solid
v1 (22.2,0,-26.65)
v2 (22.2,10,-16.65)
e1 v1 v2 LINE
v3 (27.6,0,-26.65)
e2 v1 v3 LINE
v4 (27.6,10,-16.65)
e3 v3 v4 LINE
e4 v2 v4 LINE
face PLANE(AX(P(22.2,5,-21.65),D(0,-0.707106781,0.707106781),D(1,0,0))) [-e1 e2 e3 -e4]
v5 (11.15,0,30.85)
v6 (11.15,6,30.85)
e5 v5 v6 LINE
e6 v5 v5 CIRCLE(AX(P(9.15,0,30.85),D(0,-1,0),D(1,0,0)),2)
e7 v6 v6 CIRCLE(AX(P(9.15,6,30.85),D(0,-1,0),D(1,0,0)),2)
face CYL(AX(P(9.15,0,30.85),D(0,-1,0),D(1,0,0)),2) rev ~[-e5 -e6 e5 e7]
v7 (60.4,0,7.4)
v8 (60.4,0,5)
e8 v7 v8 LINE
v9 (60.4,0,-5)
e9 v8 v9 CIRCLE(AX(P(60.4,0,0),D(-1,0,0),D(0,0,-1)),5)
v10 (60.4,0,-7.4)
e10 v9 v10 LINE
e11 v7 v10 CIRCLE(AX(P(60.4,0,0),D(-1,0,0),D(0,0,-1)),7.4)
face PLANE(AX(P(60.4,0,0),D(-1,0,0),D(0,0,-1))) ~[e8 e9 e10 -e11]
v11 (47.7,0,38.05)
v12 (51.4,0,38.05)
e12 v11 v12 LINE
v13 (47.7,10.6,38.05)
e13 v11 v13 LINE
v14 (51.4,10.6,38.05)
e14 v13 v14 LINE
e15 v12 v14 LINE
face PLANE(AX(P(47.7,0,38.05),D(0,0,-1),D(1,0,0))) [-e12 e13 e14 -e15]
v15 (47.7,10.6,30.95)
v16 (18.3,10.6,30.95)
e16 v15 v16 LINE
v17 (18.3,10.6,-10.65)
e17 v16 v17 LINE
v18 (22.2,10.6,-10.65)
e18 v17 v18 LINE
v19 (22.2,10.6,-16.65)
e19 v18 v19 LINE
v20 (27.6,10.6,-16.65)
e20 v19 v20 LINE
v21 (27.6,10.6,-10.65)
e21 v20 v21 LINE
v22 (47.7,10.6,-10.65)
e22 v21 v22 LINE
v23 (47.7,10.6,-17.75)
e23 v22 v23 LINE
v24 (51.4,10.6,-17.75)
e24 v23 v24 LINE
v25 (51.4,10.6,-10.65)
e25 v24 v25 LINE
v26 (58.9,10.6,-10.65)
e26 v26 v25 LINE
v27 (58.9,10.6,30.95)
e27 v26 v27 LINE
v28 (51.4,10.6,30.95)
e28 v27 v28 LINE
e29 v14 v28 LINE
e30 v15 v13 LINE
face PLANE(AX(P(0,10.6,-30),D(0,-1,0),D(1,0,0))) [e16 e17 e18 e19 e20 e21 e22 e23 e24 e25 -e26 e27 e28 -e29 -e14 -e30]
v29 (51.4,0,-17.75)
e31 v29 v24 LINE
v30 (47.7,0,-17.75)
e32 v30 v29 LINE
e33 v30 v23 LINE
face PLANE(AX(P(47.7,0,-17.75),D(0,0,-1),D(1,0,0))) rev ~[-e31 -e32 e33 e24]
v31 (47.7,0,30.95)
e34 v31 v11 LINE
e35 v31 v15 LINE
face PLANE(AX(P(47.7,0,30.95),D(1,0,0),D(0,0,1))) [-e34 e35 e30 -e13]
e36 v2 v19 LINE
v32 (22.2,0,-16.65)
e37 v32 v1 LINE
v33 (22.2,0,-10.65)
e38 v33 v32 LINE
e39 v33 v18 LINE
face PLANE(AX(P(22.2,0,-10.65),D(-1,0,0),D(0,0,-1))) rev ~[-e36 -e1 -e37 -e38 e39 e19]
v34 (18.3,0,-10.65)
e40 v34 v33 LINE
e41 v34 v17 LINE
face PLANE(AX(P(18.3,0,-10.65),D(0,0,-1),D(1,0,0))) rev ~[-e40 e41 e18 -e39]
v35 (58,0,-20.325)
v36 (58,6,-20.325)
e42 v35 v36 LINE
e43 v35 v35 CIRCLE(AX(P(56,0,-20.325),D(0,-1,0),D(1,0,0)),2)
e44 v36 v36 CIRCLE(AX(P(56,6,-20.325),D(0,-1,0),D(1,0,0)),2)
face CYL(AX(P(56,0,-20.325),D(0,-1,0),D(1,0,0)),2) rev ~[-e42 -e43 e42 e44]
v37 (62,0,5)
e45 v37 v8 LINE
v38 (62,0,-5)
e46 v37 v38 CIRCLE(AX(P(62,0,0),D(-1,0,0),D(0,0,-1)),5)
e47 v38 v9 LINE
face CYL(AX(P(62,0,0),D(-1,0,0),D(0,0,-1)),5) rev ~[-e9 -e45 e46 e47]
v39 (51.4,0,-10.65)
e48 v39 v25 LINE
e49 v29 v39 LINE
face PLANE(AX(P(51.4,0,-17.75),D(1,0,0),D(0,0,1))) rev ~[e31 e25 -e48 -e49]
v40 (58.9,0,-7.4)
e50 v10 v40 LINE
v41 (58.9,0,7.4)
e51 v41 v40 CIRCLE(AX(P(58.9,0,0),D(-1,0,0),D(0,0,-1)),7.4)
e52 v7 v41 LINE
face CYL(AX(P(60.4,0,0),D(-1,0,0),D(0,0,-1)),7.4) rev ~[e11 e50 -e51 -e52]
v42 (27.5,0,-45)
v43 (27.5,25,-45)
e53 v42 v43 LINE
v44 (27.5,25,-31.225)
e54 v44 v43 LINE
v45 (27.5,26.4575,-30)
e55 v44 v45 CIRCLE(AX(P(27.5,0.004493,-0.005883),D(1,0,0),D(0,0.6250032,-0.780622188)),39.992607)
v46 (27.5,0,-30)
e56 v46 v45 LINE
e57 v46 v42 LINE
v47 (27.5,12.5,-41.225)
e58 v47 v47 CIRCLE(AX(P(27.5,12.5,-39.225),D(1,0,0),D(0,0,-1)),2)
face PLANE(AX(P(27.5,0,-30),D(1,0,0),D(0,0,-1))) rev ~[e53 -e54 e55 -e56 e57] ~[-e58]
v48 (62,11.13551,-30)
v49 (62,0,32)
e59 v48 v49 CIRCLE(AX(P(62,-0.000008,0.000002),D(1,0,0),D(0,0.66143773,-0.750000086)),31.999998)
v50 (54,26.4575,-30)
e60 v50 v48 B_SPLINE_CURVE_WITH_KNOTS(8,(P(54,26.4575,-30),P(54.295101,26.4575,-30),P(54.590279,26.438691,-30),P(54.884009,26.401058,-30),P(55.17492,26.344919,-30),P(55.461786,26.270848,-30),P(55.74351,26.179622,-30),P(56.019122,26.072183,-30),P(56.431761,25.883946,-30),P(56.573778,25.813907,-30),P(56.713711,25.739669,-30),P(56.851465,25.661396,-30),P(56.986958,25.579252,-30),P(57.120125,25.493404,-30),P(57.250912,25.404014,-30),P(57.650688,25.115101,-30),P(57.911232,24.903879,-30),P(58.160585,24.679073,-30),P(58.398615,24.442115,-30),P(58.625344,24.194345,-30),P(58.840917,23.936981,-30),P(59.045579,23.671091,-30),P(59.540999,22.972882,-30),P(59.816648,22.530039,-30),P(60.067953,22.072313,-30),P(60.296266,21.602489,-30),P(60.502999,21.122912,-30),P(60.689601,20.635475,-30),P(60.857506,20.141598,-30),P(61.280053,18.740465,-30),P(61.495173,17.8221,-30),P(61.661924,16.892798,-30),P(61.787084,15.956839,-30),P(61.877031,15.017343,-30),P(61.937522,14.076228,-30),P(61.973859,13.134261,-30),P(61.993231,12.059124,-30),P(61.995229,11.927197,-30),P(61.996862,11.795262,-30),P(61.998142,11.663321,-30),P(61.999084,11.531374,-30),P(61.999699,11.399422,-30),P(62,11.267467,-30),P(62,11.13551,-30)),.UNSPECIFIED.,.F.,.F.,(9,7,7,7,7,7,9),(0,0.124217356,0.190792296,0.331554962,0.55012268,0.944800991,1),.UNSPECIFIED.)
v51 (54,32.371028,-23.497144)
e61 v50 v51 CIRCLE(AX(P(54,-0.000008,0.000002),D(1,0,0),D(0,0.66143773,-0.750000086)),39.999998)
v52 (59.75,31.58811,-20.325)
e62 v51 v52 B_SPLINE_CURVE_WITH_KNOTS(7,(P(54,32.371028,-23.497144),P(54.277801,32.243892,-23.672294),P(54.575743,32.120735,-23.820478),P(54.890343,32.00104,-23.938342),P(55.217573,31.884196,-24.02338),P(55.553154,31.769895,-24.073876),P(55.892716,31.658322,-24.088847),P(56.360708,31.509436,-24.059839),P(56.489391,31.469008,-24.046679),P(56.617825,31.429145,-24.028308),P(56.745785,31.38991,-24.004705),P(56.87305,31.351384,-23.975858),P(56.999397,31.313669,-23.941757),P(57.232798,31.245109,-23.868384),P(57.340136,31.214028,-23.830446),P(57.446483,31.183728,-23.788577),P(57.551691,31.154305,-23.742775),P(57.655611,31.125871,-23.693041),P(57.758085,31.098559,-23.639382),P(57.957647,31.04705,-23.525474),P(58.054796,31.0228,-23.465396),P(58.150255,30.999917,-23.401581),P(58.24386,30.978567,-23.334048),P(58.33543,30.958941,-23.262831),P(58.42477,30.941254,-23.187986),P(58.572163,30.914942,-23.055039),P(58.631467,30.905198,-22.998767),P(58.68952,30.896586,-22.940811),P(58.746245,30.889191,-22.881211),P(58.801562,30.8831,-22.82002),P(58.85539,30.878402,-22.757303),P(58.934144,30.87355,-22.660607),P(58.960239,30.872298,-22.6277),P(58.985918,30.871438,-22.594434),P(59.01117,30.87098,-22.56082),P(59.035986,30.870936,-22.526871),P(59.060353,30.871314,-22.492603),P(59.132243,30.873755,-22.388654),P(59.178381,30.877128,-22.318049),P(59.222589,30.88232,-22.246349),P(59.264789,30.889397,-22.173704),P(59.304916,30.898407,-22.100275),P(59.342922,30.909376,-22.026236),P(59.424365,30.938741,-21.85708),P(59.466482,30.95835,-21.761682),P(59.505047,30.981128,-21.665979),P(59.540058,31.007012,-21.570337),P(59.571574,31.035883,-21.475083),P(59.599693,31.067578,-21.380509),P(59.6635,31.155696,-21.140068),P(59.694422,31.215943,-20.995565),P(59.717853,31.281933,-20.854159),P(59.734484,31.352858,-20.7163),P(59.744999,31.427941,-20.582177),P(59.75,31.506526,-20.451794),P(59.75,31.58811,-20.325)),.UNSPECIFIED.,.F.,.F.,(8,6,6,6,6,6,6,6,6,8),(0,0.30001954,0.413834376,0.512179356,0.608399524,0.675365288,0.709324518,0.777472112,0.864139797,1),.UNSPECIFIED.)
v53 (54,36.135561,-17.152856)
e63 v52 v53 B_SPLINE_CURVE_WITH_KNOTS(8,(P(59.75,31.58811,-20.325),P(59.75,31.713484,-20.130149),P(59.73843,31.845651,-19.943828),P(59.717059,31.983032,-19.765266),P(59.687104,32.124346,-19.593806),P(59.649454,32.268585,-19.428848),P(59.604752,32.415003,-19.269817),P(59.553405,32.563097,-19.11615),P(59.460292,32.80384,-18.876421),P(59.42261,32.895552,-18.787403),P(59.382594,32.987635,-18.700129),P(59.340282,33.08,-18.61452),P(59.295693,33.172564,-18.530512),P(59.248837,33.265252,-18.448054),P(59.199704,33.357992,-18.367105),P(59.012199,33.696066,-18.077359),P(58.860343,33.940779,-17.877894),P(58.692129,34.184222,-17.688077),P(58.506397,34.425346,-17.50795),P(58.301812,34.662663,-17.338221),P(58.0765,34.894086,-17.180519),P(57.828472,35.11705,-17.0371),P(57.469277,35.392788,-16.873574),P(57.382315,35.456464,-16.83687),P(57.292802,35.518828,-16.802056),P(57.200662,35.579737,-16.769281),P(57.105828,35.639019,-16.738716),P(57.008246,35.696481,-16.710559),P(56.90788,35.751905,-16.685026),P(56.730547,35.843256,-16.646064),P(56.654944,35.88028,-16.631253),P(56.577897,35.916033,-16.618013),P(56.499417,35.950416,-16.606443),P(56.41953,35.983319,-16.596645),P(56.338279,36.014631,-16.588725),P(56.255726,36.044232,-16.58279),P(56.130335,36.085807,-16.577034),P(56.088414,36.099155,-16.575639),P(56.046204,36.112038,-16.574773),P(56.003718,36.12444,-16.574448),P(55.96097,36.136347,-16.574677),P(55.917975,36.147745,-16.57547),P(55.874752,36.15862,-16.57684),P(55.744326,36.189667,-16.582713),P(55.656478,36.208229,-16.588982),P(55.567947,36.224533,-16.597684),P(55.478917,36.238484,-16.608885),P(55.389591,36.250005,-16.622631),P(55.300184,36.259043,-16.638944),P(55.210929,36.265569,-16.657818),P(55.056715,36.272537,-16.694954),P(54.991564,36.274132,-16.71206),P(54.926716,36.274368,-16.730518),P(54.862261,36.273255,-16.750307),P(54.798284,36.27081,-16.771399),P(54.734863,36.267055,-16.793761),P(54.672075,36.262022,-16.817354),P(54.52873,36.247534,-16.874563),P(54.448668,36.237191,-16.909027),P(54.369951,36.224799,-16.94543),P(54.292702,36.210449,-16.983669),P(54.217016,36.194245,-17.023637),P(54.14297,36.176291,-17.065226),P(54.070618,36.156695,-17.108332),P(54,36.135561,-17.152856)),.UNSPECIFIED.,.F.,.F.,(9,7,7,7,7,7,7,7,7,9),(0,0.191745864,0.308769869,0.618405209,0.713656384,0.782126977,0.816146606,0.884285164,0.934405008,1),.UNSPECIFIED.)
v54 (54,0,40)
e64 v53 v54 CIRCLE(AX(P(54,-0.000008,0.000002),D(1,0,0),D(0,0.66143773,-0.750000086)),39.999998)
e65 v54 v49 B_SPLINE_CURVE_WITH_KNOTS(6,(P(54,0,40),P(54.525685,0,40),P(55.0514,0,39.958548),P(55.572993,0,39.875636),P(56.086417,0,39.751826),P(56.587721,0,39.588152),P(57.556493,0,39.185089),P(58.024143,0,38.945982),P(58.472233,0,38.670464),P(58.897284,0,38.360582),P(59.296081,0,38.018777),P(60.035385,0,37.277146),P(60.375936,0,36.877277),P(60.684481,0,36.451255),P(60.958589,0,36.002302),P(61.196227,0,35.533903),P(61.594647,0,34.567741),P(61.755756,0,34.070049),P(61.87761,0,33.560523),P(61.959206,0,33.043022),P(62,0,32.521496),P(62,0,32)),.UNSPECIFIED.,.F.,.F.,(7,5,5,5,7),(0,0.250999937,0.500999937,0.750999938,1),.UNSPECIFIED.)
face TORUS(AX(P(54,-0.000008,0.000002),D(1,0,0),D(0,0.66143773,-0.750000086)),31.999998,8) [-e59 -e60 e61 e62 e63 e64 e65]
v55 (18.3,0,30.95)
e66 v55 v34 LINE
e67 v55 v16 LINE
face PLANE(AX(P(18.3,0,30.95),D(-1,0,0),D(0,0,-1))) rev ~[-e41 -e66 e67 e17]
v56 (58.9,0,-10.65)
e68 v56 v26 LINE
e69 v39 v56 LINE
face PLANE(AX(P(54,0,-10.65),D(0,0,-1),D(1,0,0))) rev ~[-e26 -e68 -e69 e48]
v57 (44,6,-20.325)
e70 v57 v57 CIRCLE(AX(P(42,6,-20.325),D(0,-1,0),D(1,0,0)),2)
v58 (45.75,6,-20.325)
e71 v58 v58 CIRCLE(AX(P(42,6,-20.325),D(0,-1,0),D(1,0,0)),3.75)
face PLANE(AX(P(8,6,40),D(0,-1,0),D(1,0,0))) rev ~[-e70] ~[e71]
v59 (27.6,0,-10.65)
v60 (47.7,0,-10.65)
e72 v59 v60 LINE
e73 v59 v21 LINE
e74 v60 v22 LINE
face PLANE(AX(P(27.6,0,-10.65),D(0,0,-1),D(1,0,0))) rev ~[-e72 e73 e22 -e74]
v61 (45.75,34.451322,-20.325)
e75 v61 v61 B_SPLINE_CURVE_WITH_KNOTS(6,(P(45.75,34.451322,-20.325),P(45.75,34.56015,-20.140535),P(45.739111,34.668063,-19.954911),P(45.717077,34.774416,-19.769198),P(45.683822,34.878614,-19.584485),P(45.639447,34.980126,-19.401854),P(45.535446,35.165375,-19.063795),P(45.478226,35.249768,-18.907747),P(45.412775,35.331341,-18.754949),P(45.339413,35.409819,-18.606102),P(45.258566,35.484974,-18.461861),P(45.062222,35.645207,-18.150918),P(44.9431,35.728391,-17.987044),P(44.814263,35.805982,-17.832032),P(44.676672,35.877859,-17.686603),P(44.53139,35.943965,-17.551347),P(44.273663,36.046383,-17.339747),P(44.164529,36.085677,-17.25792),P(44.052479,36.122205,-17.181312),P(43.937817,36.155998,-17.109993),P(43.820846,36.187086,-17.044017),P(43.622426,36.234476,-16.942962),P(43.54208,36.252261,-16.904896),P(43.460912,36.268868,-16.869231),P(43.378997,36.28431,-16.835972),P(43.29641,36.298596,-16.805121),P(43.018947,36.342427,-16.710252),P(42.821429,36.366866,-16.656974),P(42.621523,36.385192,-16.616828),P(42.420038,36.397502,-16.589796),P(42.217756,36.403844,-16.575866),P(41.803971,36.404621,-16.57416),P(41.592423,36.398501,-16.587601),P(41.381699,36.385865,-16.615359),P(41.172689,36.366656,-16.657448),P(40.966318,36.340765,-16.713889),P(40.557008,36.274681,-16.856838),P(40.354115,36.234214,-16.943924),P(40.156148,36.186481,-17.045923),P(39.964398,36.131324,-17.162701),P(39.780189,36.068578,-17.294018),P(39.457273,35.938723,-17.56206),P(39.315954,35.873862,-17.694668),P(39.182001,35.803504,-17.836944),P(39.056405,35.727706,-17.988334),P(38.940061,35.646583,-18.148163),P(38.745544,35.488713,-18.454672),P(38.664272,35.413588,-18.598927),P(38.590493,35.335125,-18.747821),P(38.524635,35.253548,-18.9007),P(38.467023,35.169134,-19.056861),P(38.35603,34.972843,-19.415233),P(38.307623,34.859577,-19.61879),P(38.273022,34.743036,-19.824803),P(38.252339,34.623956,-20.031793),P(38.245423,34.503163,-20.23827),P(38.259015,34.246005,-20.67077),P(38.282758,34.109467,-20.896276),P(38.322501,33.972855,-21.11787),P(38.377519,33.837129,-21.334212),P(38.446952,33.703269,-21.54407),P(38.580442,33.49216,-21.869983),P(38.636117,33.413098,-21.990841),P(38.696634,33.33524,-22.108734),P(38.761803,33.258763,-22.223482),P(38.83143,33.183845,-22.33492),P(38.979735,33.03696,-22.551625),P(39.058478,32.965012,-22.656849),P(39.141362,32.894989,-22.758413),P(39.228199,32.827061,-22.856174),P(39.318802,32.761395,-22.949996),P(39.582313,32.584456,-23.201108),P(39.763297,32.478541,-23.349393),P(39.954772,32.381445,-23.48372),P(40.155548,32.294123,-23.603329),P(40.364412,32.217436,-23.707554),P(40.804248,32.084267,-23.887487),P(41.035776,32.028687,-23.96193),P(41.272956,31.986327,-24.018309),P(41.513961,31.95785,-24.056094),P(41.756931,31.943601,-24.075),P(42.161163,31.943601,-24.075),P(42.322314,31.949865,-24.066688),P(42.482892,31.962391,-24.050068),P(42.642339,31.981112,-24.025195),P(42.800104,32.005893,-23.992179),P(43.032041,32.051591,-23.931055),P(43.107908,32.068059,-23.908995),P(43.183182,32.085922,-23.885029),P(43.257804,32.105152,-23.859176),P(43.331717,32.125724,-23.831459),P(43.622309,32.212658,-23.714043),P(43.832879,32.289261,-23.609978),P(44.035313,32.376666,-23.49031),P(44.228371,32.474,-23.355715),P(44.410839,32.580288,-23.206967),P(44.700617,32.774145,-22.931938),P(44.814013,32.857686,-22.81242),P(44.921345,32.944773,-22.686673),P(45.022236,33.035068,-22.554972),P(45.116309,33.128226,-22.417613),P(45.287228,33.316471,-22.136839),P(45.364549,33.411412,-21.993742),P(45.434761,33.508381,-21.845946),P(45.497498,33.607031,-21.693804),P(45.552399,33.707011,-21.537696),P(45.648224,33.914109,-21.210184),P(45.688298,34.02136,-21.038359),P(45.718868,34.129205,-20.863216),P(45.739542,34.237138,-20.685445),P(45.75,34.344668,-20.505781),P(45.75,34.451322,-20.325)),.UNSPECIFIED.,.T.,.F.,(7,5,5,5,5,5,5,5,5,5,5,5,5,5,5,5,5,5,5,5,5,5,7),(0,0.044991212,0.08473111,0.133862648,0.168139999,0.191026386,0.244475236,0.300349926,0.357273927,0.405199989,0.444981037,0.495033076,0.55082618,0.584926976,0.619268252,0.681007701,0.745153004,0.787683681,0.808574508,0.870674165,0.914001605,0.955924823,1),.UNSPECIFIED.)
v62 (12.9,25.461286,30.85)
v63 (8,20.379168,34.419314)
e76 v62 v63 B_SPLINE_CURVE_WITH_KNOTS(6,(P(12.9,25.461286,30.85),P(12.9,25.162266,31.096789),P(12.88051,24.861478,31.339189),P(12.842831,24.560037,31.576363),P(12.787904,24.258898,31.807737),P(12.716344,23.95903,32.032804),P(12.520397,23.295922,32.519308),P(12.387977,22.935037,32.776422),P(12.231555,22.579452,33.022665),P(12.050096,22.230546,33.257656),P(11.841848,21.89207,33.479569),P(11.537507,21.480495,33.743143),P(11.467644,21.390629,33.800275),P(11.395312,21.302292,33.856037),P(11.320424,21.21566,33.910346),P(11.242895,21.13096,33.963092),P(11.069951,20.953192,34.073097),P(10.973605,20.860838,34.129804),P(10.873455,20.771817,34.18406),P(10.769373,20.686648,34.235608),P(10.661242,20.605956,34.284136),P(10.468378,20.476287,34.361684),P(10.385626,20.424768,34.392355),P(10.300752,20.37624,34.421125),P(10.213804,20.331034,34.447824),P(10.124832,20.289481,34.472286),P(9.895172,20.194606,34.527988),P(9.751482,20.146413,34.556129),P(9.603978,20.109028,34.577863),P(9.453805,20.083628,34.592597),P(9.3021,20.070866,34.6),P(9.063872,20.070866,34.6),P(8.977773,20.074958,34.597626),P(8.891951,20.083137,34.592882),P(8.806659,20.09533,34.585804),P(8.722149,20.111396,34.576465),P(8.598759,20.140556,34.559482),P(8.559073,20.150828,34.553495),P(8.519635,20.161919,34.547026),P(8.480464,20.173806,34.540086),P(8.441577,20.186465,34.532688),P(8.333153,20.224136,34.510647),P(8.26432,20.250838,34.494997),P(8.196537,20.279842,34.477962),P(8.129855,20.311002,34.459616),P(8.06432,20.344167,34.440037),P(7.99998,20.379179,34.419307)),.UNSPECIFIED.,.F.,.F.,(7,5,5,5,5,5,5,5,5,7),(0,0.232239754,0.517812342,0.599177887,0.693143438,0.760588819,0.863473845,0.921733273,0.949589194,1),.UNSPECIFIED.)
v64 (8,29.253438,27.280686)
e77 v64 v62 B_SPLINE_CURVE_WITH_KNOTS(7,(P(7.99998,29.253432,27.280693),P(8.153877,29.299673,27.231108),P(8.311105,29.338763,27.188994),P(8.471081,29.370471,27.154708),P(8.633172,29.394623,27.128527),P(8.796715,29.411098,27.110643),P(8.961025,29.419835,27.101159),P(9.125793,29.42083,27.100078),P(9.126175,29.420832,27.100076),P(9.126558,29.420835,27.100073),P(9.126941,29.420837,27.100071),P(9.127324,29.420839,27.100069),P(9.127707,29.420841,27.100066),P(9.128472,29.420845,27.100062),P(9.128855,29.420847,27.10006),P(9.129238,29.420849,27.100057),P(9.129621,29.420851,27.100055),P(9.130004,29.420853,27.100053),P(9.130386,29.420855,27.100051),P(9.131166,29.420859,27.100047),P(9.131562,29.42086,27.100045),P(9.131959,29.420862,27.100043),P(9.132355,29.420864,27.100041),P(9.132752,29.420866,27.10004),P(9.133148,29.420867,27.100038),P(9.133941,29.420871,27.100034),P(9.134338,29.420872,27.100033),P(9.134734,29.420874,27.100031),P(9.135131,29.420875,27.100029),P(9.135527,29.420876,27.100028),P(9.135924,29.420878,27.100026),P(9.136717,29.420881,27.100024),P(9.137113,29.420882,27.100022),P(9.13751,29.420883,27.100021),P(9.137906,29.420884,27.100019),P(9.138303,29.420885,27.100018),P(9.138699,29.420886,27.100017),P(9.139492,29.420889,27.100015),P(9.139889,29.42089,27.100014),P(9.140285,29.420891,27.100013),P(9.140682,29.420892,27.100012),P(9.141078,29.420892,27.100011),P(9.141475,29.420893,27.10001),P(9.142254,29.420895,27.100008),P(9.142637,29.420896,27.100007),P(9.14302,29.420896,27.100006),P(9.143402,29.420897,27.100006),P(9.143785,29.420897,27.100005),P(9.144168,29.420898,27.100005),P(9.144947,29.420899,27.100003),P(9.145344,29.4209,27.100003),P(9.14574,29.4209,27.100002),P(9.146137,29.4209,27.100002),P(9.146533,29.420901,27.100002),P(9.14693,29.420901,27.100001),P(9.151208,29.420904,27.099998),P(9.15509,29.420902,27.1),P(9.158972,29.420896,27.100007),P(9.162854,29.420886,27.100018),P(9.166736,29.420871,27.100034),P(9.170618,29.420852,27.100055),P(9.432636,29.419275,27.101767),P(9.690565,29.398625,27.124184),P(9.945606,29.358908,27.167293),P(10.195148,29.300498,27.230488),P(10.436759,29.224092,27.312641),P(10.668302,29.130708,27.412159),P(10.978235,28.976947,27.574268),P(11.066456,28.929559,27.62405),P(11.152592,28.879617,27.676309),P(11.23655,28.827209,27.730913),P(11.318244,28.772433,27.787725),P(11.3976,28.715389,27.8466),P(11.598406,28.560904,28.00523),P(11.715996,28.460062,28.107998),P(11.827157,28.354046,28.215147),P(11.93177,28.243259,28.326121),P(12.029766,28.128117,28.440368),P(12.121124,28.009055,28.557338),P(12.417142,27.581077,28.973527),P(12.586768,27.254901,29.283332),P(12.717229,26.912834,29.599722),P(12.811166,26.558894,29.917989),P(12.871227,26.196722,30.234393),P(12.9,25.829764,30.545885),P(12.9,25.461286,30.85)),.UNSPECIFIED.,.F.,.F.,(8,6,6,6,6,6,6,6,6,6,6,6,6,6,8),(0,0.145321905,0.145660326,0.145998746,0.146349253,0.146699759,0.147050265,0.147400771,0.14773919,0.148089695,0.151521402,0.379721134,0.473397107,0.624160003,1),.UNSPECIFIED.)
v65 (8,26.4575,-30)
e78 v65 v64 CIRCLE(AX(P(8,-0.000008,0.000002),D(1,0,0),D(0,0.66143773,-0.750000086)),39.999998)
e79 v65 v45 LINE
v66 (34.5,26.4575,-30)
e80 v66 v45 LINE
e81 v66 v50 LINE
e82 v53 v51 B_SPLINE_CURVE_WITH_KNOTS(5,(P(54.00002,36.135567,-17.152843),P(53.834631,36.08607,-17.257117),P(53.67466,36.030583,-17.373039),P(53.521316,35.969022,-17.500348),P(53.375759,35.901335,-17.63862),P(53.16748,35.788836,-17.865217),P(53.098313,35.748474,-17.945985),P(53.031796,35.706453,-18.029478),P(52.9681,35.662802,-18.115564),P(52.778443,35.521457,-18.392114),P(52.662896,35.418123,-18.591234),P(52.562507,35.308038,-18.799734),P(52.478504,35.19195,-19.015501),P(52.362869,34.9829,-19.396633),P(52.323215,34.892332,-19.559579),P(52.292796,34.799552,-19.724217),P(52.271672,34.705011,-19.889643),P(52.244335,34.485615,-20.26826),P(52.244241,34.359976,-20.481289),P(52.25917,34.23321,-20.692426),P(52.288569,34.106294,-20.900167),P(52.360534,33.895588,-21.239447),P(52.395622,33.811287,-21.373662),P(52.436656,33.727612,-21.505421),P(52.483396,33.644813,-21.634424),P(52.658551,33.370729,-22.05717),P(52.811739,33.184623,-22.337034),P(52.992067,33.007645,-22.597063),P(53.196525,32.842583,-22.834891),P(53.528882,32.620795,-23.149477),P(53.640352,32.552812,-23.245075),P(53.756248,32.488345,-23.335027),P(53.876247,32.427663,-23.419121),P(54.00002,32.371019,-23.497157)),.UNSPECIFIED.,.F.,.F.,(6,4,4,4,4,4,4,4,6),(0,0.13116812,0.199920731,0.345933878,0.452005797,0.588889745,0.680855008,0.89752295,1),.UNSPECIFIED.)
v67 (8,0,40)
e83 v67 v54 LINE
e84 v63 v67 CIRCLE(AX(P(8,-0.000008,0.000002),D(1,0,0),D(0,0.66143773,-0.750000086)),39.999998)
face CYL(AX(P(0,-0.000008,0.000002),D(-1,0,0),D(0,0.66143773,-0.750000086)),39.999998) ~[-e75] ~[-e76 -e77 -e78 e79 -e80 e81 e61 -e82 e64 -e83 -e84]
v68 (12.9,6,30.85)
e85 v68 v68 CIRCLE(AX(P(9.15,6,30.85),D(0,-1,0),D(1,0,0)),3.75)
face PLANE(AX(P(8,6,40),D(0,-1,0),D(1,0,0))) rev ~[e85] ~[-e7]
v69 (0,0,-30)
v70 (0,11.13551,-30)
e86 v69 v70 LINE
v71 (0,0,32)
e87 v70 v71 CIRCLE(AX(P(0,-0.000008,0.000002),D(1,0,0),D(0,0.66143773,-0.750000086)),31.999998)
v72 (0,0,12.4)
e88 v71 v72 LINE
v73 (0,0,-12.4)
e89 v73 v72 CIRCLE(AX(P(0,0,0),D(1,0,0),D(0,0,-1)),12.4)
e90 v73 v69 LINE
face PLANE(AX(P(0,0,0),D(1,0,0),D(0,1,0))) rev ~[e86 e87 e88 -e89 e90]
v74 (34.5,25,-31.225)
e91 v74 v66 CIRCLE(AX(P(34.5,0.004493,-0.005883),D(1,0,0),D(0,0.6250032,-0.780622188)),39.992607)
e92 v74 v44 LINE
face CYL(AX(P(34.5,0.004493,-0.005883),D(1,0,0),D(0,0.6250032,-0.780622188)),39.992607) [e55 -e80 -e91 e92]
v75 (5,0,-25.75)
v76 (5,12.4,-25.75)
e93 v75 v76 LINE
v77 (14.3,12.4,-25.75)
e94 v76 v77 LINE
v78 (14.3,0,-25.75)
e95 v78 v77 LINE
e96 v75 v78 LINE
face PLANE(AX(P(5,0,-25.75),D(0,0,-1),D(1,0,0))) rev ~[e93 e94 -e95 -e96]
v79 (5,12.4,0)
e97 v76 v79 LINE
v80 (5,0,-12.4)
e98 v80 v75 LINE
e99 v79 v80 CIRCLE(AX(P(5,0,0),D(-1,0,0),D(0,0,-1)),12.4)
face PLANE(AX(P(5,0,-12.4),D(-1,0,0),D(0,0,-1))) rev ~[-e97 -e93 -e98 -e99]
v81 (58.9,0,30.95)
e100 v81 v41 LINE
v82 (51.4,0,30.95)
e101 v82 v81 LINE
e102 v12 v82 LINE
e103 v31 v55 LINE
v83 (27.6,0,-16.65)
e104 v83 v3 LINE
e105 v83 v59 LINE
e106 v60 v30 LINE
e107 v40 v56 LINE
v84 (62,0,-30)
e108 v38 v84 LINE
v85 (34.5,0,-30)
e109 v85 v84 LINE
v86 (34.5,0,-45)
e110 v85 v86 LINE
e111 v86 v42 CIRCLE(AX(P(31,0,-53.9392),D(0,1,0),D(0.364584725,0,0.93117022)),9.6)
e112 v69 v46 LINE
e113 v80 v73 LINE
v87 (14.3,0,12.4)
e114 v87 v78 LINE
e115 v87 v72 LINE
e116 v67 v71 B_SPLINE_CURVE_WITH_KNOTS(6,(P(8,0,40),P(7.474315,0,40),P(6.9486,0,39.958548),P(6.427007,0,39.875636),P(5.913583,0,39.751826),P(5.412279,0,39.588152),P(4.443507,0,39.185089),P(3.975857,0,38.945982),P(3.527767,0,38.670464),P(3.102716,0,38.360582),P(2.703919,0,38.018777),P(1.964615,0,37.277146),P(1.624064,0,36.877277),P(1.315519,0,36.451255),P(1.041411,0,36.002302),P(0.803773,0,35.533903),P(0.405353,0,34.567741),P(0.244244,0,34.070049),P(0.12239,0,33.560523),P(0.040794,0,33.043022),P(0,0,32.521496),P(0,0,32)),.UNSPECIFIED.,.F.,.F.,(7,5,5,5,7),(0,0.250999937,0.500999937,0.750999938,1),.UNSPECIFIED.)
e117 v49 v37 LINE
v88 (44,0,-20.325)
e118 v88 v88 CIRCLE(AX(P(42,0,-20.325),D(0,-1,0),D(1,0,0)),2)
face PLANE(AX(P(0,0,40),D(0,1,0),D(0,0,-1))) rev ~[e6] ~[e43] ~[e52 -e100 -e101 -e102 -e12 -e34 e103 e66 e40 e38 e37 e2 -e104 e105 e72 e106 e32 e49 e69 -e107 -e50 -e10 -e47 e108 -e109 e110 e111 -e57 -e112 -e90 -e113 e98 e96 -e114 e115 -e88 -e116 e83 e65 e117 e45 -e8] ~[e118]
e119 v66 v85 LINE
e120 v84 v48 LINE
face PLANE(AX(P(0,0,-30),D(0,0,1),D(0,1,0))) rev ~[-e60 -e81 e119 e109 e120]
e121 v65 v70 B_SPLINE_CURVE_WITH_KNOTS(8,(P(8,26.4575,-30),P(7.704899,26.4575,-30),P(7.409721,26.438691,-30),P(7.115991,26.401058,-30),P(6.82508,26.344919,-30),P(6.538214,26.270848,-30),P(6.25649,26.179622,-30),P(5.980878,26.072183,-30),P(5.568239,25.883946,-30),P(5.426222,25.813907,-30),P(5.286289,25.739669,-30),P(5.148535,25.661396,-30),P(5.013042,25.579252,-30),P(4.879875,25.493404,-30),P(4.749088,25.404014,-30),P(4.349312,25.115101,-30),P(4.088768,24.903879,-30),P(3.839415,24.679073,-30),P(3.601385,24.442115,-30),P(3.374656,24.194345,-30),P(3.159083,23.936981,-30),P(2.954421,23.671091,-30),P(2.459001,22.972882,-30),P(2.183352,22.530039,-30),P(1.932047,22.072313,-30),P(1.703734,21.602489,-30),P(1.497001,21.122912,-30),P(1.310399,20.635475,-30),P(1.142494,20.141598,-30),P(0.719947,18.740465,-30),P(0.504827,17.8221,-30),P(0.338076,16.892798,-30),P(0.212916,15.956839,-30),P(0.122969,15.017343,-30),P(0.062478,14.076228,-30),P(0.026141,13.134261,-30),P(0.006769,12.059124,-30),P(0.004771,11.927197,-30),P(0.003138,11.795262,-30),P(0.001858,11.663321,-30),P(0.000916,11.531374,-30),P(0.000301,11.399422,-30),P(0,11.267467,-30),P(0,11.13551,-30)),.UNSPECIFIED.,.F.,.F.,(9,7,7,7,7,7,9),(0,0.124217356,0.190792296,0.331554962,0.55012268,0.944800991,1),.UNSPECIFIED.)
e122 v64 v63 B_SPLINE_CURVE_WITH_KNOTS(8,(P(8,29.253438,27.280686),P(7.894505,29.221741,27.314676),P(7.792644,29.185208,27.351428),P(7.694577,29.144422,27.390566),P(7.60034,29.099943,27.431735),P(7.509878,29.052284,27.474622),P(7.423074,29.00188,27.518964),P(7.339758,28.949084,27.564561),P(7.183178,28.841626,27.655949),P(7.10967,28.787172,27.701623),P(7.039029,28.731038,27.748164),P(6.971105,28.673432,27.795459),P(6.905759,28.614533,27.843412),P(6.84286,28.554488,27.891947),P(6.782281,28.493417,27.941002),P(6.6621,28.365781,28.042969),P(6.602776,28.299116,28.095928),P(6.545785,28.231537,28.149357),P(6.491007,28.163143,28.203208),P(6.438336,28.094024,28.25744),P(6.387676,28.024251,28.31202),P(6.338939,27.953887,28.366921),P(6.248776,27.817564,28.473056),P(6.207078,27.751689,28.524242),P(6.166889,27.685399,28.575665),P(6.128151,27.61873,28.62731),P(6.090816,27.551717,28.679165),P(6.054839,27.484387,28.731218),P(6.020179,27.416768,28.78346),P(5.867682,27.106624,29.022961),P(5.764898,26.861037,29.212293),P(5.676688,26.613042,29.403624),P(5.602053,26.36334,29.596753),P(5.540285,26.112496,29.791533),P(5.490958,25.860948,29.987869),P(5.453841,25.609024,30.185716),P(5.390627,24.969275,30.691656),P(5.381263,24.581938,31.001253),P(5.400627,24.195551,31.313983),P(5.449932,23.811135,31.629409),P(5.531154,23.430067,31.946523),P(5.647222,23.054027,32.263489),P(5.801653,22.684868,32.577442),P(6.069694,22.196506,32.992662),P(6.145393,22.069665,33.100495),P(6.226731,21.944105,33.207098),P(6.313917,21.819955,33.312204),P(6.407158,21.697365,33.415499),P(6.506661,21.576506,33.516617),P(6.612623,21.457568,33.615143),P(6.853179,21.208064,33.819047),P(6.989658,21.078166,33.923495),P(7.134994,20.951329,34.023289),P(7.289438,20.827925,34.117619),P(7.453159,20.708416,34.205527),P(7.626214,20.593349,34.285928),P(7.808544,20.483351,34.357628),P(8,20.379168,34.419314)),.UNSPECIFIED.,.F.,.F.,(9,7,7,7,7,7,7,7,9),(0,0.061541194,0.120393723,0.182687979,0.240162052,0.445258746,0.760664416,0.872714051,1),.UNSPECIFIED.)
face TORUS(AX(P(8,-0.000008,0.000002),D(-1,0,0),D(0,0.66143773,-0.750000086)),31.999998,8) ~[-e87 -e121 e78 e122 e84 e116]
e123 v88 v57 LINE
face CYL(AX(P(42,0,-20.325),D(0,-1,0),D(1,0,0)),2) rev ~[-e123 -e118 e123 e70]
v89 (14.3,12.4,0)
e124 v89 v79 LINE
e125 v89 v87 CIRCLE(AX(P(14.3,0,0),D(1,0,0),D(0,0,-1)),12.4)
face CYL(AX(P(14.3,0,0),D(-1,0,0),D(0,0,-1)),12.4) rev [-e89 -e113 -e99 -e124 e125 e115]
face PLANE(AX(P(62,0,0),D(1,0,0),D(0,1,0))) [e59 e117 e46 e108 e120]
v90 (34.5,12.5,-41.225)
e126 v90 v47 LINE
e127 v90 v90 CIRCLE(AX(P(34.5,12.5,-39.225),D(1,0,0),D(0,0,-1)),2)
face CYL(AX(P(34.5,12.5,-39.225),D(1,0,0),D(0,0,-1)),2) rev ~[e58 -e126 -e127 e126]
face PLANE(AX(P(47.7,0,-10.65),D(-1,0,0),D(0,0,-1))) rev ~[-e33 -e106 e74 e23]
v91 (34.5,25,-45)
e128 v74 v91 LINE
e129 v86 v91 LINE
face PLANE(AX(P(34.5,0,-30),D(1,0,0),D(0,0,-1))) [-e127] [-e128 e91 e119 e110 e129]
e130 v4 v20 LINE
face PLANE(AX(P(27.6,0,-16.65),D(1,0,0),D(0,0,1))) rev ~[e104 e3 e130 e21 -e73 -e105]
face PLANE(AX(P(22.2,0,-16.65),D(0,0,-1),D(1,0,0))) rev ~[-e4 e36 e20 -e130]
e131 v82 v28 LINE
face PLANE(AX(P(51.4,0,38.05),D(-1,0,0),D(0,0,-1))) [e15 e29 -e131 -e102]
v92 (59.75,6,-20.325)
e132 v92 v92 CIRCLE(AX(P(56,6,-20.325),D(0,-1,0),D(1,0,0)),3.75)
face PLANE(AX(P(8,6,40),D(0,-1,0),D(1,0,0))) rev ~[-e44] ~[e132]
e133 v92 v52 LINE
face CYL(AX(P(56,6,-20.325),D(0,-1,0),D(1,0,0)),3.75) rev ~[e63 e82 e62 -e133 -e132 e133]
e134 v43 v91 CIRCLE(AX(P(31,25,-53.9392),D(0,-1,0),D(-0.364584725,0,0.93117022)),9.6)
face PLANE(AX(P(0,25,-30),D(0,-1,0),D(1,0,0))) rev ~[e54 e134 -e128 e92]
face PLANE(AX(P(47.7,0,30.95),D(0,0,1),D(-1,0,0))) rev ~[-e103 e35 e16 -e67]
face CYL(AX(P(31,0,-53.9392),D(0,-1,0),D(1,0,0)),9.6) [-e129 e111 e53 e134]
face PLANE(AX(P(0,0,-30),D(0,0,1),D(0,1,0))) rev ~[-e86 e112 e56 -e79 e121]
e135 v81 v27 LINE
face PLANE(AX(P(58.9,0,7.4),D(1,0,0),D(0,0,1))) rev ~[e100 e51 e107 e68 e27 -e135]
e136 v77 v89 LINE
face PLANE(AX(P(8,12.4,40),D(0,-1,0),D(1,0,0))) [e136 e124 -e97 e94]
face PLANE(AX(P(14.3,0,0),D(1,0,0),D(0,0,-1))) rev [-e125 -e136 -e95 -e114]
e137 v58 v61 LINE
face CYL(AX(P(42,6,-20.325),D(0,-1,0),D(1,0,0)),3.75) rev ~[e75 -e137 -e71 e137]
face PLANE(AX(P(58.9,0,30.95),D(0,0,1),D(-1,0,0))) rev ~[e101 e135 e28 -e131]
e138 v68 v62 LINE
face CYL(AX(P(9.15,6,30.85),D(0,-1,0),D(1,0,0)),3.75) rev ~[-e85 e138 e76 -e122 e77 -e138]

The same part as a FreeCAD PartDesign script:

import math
import FreeCAD as App
import Part
import Sketcher
from FreeCAD import Vector
Q = App.Units.Quantity


def edges_at(feature, points):
    """Names of the edges that pass closest to the given points."""
    edges = feature.Shape.Edges
    near = lambda p: min(range(len(edges)), key=lambda i: edges[i].distToShape(Part.Vertex(*p))[0])
    return sorted({f"Edge{near(p) + 1}" for p in points})

doc = App.newDocument("Part")
body = doc.addObject("PartDesign::Body", "Body")

# Sketch on YZ plane
sketch1 = body.newObject("Sketcher::SketchObject", "Sketch")
sketch1.AttachmentSupport = (doc.getObject("YZ_Plane"), [""])
sketch1.MapMode = "FlatFace"
sketch1.addGeometry(Part.LineSegment(Vector(0, -30, 0), Vector(26, -30, 0)), False)
sketch1.addGeometry(Part.ArcOfCircle(Part.Circle(Vector(0, 0, 0), Vector(0, 0, 1), 40), math.radians(-49), math.radians(90)), False)
sketch1.addGeometry(Part.LineSegment(Vector(0, 40, 0), Vector(0, -30, 0)), False)
sketch1.addConstraint(Sketcher.Constraint("Coincident", 0, 2, 1, 1))
sketch1.addConstraint(Sketcher.Constraint("Coincident", 1, 2, 2, 1))
sketch1.addConstraint(Sketcher.Constraint("Coincident", 2, 2, 0, 1))
sketch1.addConstraint(Sketcher.Constraint("Horizontal", 0))
sketch1.addConstraint(Sketcher.Constraint("Vertical", 2))
sketch1.addConstraint(Sketcher.Constraint("Coincident", 1, 3, -1, 1))
sketch1.addConstraint(Sketcher.Constraint("PointOnObject", 1, 2, -2))
sketch1.addConstraint(Sketcher.Constraint("Radius", 1, Q("40 mm")))
sketch1.addConstraint(Sketcher.Constraint("DistanceY", 2, 2, 2, 1, Q("70 mm")))
pad1 = body.newObject("PartDesign::Pad", "Pad")
pad1.Profile = sketch1
pad1.Length = 62
doc.recompute()

fillet = body.newObject("PartDesign::Fillet", "Fillet")
fillet.Base = (pad1, edges_at(pad1, [(0, 37.417, 14.142), (62, 37.417, 14.142)]))
fillet.Radius = 8

# Sketch on XZ plane
sketch2 = body.newObject("Sketcher::SketchObject", "Sketch001")
sketch2.AttachmentSupport = (doc.getObject("XZ_Plane"), [""])
sketch2.MapMode = "FlatFace"
sketch2.addGeometry(Part.ArcOfCircle(Part.Circle(Vector(31, -54, 0), Vector(0, 0, 1), 10), math.radians(111), math.radians(429)), False)
sketch2.addGeometry(Part.LineSegment(Vector(34, -45, 0), Vector(34, -30, 0)), False)
sketch2.addGeometry(Part.LineSegment(Vector(34, -30, 0), Vector(28, -30, 0)), False)
sketch2.addGeometry(Part.LineSegment(Vector(28, -30, 0), Vector(28, -45, 0)), False)
sketch2.addConstraint(Sketcher.Constraint("Coincident", 0, 2, 1, 1))
sketch2.addConstraint(Sketcher.Constraint("Coincident", 1, 2, 2, 1))
sketch2.addConstraint(Sketcher.Constraint("Coincident", 2, 2, 3, 1))
sketch2.addConstraint(Sketcher.Constraint("Coincident", 3, 2, 0, 1))
sketch2.addConstraint(Sketcher.Constraint("Vertical", 1))
sketch2.addConstraint(Sketcher.Constraint("Horizontal", 2))
sketch2.addConstraint(Sketcher.Constraint("Vertical", 3))
sketch2.addConstraint(Sketcher.Constraint("Horizontal", 0, 2, 3, 2))
sketch2.addConstraint(Sketcher.Constraint("Radius", 0, Q("9.6 mm")))
sketch2.addConstraint(Sketcher.Constraint("DistanceY", 1, 1, 1, 2, Q("15 mm")))
sketch2.addConstraint(Sketcher.Constraint("DistanceX", 0, 3, 0, 2, Q("3.5 mm")))
sketch2.addConstraint(Sketcher.Constraint("DistanceX", -1, 1, 0, 3, Q("31 mm")))
sketch2.addConstraint(Sketcher.Constraint("DistanceY", 0, 2, -1, 1, Q("45 mm")))
pad2 = body.newObject("PartDesign::Pad", "Pad001")
pad2.Profile = sketch2
pad2.Length = 25
pad2.Reversed = True

# Sketch on YZ plane
sketch3 = body.newObject("Sketcher::SketchObject", "Sketch002")
sketch3.AttachmentSupport = (doc.getObject("YZ_Plane"), [""])
sketch3.MapMode = "FlatFace"
sketch3.AttachmentOffset = App.Placement(Vector(0, 0, 34.5), App.Rotation())
sketch3.addGeometry(Part.LineSegment(Vector(26.5, -30, 0), Vector(25, -30, 0)), False)
sketch3.addGeometry(Part.LineSegment(Vector(25, -30, 0), Vector(25, -31.2, 0)), False)
sketch3.addGeometry(Part.ArcOfCircle(Part.Circle(Vector(0, 0, 0), Vector(0, 0, 1), 40), math.radians(-51.32), math.radians(-48.59)), False)
sketch3.addConstraint(Sketcher.Constraint("Coincident", 0, 2, 1, 1))
sketch3.addConstraint(Sketcher.Constraint("Coincident", 1, 2, 2, 1))
sketch3.addConstraint(Sketcher.Constraint("Coincident", 2, 2, 0, 1))
sketch3.addConstraint(Sketcher.Constraint("Horizontal", 0))
sketch3.addConstraint(Sketcher.Constraint("Vertical", 1))
sketch3.addConstraint(Sketcher.Constraint("DistanceY", 1, 2, 1, 1, Q("1.225 mm")))
sketch3.addConstraint(Sketcher.Constraint("DistanceX", -1, 1, 0, 2, Q("25 mm")))
sketch3.addConstraint(Sketcher.Constraint("DistanceY", 0, 2, -1, 1, Q("30 mm")))
sketch3.addConstraint(Sketcher.Constraint("Radius", 2, Q("39.9926 mm")))
sketch3.addConstraint(Sketcher.Constraint("DistanceX", 0, 2, 0, 1, Q("1.4575 mm")))
pad3 = body.newObject("PartDesign::Pad", "Pad002")
pad3.Profile = sketch3
pad3.Length = 7
pad3.Reversed = True

# Sketch on XZ plane
sketch4 = body.newObject("Sketcher::SketchObject", "Sketch003")
sketch4.AttachmentSupport = (doc.getObject("XZ_Plane"), [""])
sketch4.MapMode = "FlatFace"
sketch4.addGeometry(Part.LineSegment(Vector(58.9, 30.9, 0), Vector(51.4, 30.9, 0)), False)
sketch4.addGeometry(Part.LineSegment(Vector(51.4, 30.9, 0), Vector(51.4, 38, 0)), False)
sketch4.addGeometry(Part.LineSegment(Vector(51.4, 38, 0), Vector(47.7, 38, 0)), False)
sketch4.addGeometry(Part.LineSegment(Vector(47.7, 38, 0), Vector(47.7, 30.9, 0)), False)
sketch4.addGeometry(Part.LineSegment(Vector(47.7, 30.9, 0), Vector(18.3, 30.9, 0)), False)
sketch4.addGeometry(Part.LineSegment(Vector(18.3, 30.9, 0), Vector(18.3, -10.7, 0)), False)
sketch4.addGeometry(Part.LineSegment(Vector(18.3, -10.7, 0), Vector(22.2, -10.7, 0)), False)
sketch4.addGeometry(Part.LineSegment(Vector(22.2, -10.7, 0), Vector(22.2, -16.6, 0)), False)
sketch4.addGeometry(Part.LineSegment(Vector(22.2, -16.6, 0), Vector(27.6, -16.6, 0)), False)
sketch4.addGeometry(Part.LineSegment(Vector(27.6, -16.6, 0), Vector(27.6, -10.7, 0)), False)
sketch4.addGeometry(Part.LineSegment(Vector(27.6, -10.7, 0), Vector(47.7, -10.7, 0)), False)
sketch4.addGeometry(Part.LineSegment(Vector(47.7, -10.7, 0), Vector(47.7, -17.8, 0)), False)
sketch4.addGeometry(Part.LineSegment(Vector(47.7, -17.8, 0), Vector(51.4, -17.8, 0)), False)
sketch4.addGeometry(Part.LineSegment(Vector(51.4, -17.8, 0), Vector(51.4, -10.7, 0)), False)
sketch4.addGeometry(Part.LineSegment(Vector(51.4, -10.7, 0), Vector(58.9, -10.7, 0)), False)
sketch4.addGeometry(Part.LineSegment(Vector(58.9, -10.7, 0), Vector(58.9, 30.9, 0)), False)
sketch4.addConstraint(Sketcher.Constraint("Coincident", 0, 2, 1, 1))
sketch4.addConstraint(Sketcher.Constraint("Coincident", 1, 2, 2, 1))
sketch4.addConstraint(Sketcher.Constraint("Coincident", 2, 2, 3, 1))
sketch4.addConstraint(Sketcher.Constraint("Coincident", 3, 2, 4, 1))
sketch4.addConstraint(Sketcher.Constraint("Coincident", 4, 2, 5, 1))
sketch4.addConstraint(Sketcher.Constraint("Coincident", 5, 2, 6, 1))
sketch4.addConstraint(Sketcher.Constraint("Coincident", 6, 2, 7, 1))
sketch4.addConstraint(Sketcher.Constraint("Coincident", 7, 2, 8, 1))
sketch4.addConstraint(Sketcher.Constraint("Coincident", 8, 2, 9, 1))
sketch4.addConstraint(Sketcher.Constraint("Coincident", 9, 2, 10, 1))
sketch4.addConstraint(Sketcher.Constraint("Coincident", 10, 2, 11, 1))
sketch4.addConstraint(Sketcher.Constraint("Coincident", 11, 2, 12, 1))
sketch4.addConstraint(Sketcher.Constraint("Coincident", 12, 2, 13, 1))
sketch4.addConstraint(Sketcher.Constraint("Coincident", 13, 2, 14, 1))
sketch4.addConstraint(Sketcher.Constraint("Coincident", 14, 2, 15, 1))
sketch4.addConstraint(Sketcher.Constraint("Coincident", 15, 2, 0, 1))
sketch4.addConstraint(Sketcher.Constraint("Horizontal", 0))
sketch4.addConstraint(Sketcher.Constraint("Vertical", 1))
sketch4.addConstraint(Sketcher.Constraint("Horizontal", 2))
sketch4.addConstraint(Sketcher.Constraint("Vertical", 3))
sketch4.addConstraint(Sketcher.Constraint("Horizontal", 4))
sketch4.addConstraint(Sketcher.Constraint("Vertical", 5))
sketch4.addConstraint(Sketcher.Constraint("Horizontal", 6))
sketch4.addConstraint(Sketcher.Constraint("Vertical", 7))
sketch4.addConstraint(Sketcher.Constraint("Horizontal", 8))
sketch4.addConstraint(Sketcher.Constraint("Vertical", 9))
sketch4.addConstraint(Sketcher.Constraint("Horizontal", 10))
sketch4.addConstraint(Sketcher.Constraint("Vertical", 11))
sketch4.addConstraint(Sketcher.Constraint("Horizontal", 12))
sketch4.addConstraint(Sketcher.Constraint("Vertical", 13))
sketch4.addConstraint(Sketcher.Constraint("Horizontal", 14))
sketch4.addConstraint(Sketcher.Constraint("Vertical", 15))
sketch4.addConstraint(Sketcher.Constraint("Horizontal", 0, 2, 3, 2))
sketch4.addConstraint(Sketcher.Constraint("Horizontal", 6, 2, 9, 2))
sketch4.addConstraint(Sketcher.Constraint("Horizontal", 10, 2, 13, 2))
sketch4.addConstraint(Sketcher.Constraint("Vertical", 3, 2, 10, 2))
sketch4.addConstraint(Sketcher.Constraint("Vertical", 1, 2, 12, 2))
sketch4.addConstraint(Sketcher.Constraint("Equal", 3, 11))
sketch4.addConstraint(Sketcher.Constraint("DistanceY", 7, 2, 7, 1, Q("6 mm")))
sketch4.addConstraint(Sketcher.Constraint("DistanceX", 0, 2, 0, 1, Q("7.5 mm")))
sketch4.addConstraint(Sketcher.Constraint("DistanceX", 2, 2, 2, 1, Q("3.7 mm")))
sketch4.addConstraint(Sketcher.Constraint("DistanceX", 6, 1, 6, 2, Q("3.9 mm")))
sketch4.addConstraint(Sketcher.Constraint("DistanceX", 8, 1, 8, 2, Q("5.4 mm")))
sketch4.addConstraint(Sketcher.Constraint("DistanceY", 1, 1, 1, 2, Q("7.1 mm")))
sketch4.addConstraint(Sketcher.Constraint("DistanceY", 5, 2, 5, 1, Q("41.6 mm")))
sketch4.addConstraint(Sketcher.Constraint("DistanceX", 4, 2, 15, 2, Q("40.6 mm")))
sketch4.addConstraint(Sketcher.Constraint("DistanceY", 5, 2, -1, 1, Q("10.65 mm")))
sketch4.addConstraint(Sketcher.Constraint("DistanceX", -1, 1, 0, 2, Q("51.4 mm")))
pocket1 = body.newObject("PartDesign::Pocket", "Pocket")
pocket1.Profile = sketch4
pocket1.Length = 10.6

# Sketch on XZ plane
sketch5 = body.newObject("Sketcher::SketchObject", "Sketch004")
sketch5.AttachmentSupport = (doc.getObject("XZ_Plane"), [""])
sketch5.MapMode = "FlatFace"
sketch5.addGeometry(Part.LineSegment(Vector(58.9, 0, 0), Vector(58.9, -7.4, 0)), False)
sketch5.addGeometry(Part.LineSegment(Vector(58.9, -7.4, 0), Vector(60.4, -7.4, 0)), False)
sketch5.addGeometry(Part.LineSegment(Vector(60.4, -7.4, 0), Vector(60.4, -5, 0)), False)
sketch5.addGeometry(Part.LineSegment(Vector(60.4, -5, 0), Vector(62, -5, 0)), False)
sketch5.addGeometry(Part.LineSegment(Vector(62, -5, 0), Vector(62, 0, 0)), False)
sketch5.addGeometry(Part.LineSegment(Vector(62, 0, 0), Vector(58.9, 0, 0)), False)
sketch5.addConstraint(Sketcher.Constraint("Coincident", 0, 2, 1, 1))
sketch5.addConstraint(Sketcher.Constraint("Coincident", 1, 2, 2, 1))
sketch5.addConstraint(Sketcher.Constraint("Coincident", 2, 2, 3, 1))
sketch5.addConstraint(Sketcher.Constraint("Coincident", 3, 2, 4, 1))
sketch5.addConstraint(Sketcher.Constraint("Coincident", 4, 2, 5, 1))
sketch5.addConstraint(Sketcher.Constraint("Coincident", 5, 2, 0, 1))
sketch5.addConstraint(Sketcher.Constraint("Vertical", 0))
sketch5.addConstraint(Sketcher.Constraint("Horizontal", 1))
sketch5.addConstraint(Sketcher.Constraint("Vertical", 2))
sketch5.addConstraint(Sketcher.Constraint("Horizontal", 3))
sketch5.addConstraint(Sketcher.Constraint("Vertical", 4))
sketch5.addConstraint(Sketcher.Constraint("Horizontal", 5))
sketch5.addConstraint(Sketcher.Constraint("PointOnObject", 4, 2, -1))
sketch5.addConstraint(Sketcher.Constraint("DistanceY", 4, 1, 4, 2, Q("5 mm")))
sketch5.addConstraint(Sketcher.Constraint("DistanceX", 1, 1, 1, 2, Q("1.5 mm")))
sketch5.addConstraint(Sketcher.Constraint("DistanceX", 3, 1, 3, 2, Q("1.6 mm")))
sketch5.addConstraint(Sketcher.Constraint("DistanceY", 0, 2, 0, 1, Q("7.4 mm")))
sketch5.addConstraint(Sketcher.Constraint("DistanceX", -1, 1, 3, 2, Q("62 mm")))
groove = body.newObject("PartDesign::Groove", "Groove")
groove.Profile = sketch5
groove.ReferenceAxis = (sketch5, ["H_Axis"])
groove.Angle = 360

# Sketch on XZ plane
sketch6 = body.newObject("Sketcher::SketchObject", "Sketch005")
sketch6.AttachmentSupport = (doc.getObject("XZ_Plane"), [""])
sketch6.MapMode = "FlatFace"
sketch6.addGeometry(Part.LineSegment(Vector(14, 0, 0), Vector(0, 0, 0)), False)
sketch6.addGeometry(Part.LineSegment(Vector(0, 0, 0), Vector(0, -12, 0)), False)
sketch6.addGeometry(Part.LineSegment(Vector(0, -12, 0), Vector(14, -12, 0)), False)
sketch6.addGeometry(Part.LineSegment(Vector(14, -12, 0), Vector(14, 0, 0)), False)
sketch6.addConstraint(Sketcher.Constraint("Coincident", 0, 2, 1, 1))
sketch6.addConstraint(Sketcher.Constraint("Coincident", 1, 2, 2, 1))
sketch6.addConstraint(Sketcher.Constraint("Coincident", 2, 2, 3, 1))
sketch6.addConstraint(Sketcher.Constraint("Coincident", 3, 2, 0, 1))
sketch6.addConstraint(Sketcher.Constraint("Horizontal", 0))
sketch6.addConstraint(Sketcher.Constraint("Vertical", 1))
sketch6.addConstraint(Sketcher.Constraint("Horizontal", 2))
sketch6.addConstraint(Sketcher.Constraint("Vertical", 3))
sketch6.addConstraint(Sketcher.Constraint("Coincident", 0, 2, -1, 1))
sketch6.addConstraint(Sketcher.Constraint("DistanceX", 0, 2, 0, 1, Q("14.3 mm")))
sketch6.addConstraint(Sketcher.Constraint("DistanceY", 1, 2, 1, 1, Q("12.4 mm")))
groove2 = body.newObject("PartDesign::Groove", "Groove001")
groove2.Profile = sketch6
groove2.ReferenceAxis = (sketch6, ["H_Axis"])
groove2.Angle = 360

# Sketch on XZ plane
sketch7 = body.newObject("Sketcher::SketchObject", "Sketch006")
sketch7.AttachmentSupport = (doc.getObject("XZ_Plane"), [""])
sketch7.MapMode = "FlatFace"
sketch7.addGeometry(Part.LineSegment(Vector(14, -26, 0), Vector(14, 0, 0)), False)
sketch7.addGeometry(Part.LineSegment(Vector(14, 0, 0), Vector(5, 0, 0)), False)
sketch7.addGeometry(Part.LineSegment(Vector(5, 0, 0), Vector(5, -26, 0)), False)
sketch7.addGeometry(Part.LineSegment(Vector(5, -26, 0), Vector(14, -26, 0)), False)
sketch7.addConstraint(Sketcher.Constraint("Coincident", 0, 2, 1, 1))
sketch7.addConstraint(Sketcher.Constraint("Coincident", 1, 2, 2, 1))
sketch7.addConstraint(Sketcher.Constraint("Coincident", 2, 2, 3, 1))
sketch7.addConstraint(Sketcher.Constraint("Coincident", 3, 2, 0, 1))
sketch7.addConstraint(Sketcher.Constraint("Vertical", 0))
sketch7.addConstraint(Sketcher.Constraint("Horizontal", 1))
sketch7.addConstraint(Sketcher.Constraint("Vertical", 2))
sketch7.addConstraint(Sketcher.Constraint("Horizontal", 3))
sketch7.addConstraint(Sketcher.Constraint("PointOnObject", 0, 2, -1))
sketch7.addConstraint(Sketcher.Constraint("DistanceX", -1, 1, 1, 2, Q("5 mm")))
sketch7.addConstraint(Sketcher.Constraint("DistanceX", 1, 2, 1, 1, Q("9.3 mm")))
sketch7.addConstraint(Sketcher.Constraint("DistanceY", 0, 1, 0, 2, Q("25.75 mm")))
pocket2 = body.newObject("PartDesign::Pocket", "Pocket001")
pocket2.Profile = sketch7
pocket2.Length = 12.4

# Sketch on XZ plane
sketch8 = body.newObject("Sketcher::SketchObject", "Sketch007")
sketch8.AttachmentSupport = (doc.getObject("XZ_Plane"), [""])
sketch8.MapMode = "FlatFace"
sketch8.addGeometry(Part.Circle(Vector(9.2, 30.9, 0), Vector(0, 0, 1), 2), False)
sketch8.addGeometry(Part.Circle(Vector(42, -20.3, 0), Vector(0, 0, 1), 2), False)
sketch8.addGeometry(Part.Circle(Vector(56, -20.3, 0), Vector(0, 0, 1), 2), False)
sketch8.addConstraint(Sketcher.Constraint("Equal", 0, 1))
sketch8.addConstraint(Sketcher.Constraint("Equal", 1, 2))
sketch8.addConstraint(Sketcher.Constraint("Horizontal", 1, 3, 2, 3))
sketch8.addConstraint(Sketcher.Constraint("Diameter", 0, Q("4 mm")))
sketch8.addConstraint(Sketcher.Constraint("DistanceX", -1, 1, 0, 3, Q("9.15 mm")))
sketch8.addConstraint(Sketcher.Constraint("DistanceX", -1, 1, 1, 3, Q("42 mm")))
sketch8.addConstraint(Sketcher.Constraint("DistanceX", -1, 1, 2, 3, Q("56 mm")))
sketch8.addConstraint(Sketcher.Constraint("DistanceY", -1, 1, 0, 3, Q("30.85 mm")))
sketch8.addConstraint(Sketcher.Constraint("DistanceY", 1, 3, -1, 1, Q("20.325 mm")))
pocket3 = body.newObject("PartDesign::Pocket", "Pocket002")
pocket3.Profile = sketch8
pocket3.Type = "ThroughAll"

# Sketch on XZ plane
sketch9 = body.newObject("Sketcher::SketchObject", "Sketch008")
sketch9.AttachmentSupport = (doc.getObject("XZ_Plane"), [""])
sketch9.MapMode = "FlatFace"
sketch9.AttachmentOffset = App.Placement(Vector(0, 0, -6), App.Rotation())
sketch9.addGeometry(Part.Circle(Vector(56, -20.3, 0), Vector(0, 0, 1), 3.8), False)
sketch9.addGeometry(Part.Circle(Vector(42, -20.3, 0), Vector(0, 0, 1), 3.8), False)
sketch9.addGeometry(Part.Circle(Vector(9.2, 30.9, 0), Vector(0, 0, 1), 3.8), False)
sketch9.addConstraint(Sketcher.Constraint("Equal", 0, 1))
sketch9.addConstraint(Sketcher.Constraint("Equal", 1, 2))
sketch9.addConstraint(Sketcher.Constraint("Horizontal", 0, 3, 1, 3))
sketch9.addConstraint(Sketcher.Constraint("Diameter", 0, Q("7.5 mm")))
sketch9.addConstraint(Sketcher.Constraint("DistanceX", -1, 1, 0, 3, Q("56 mm")))
sketch9.addConstraint(Sketcher.Constraint("DistanceX", -1, 1, 1, 3, Q("42 mm")))
sketch9.addConstraint(Sketcher.Constraint("DistanceX", -1, 1, 2, 3, Q("9.15 mm")))
sketch9.addConstraint(Sketcher.Constraint("DistanceY", -1, 1, 2, 3, Q("30.85 mm")))
sketch9.addConstraint(Sketcher.Constraint("DistanceY", 0, 3, -1, 1, Q("20.325 mm")))
pocket4 = body.newObject("PartDesign::Pocket", "Pocket003")
pocket4.Profile = sketch9
pocket4.Type = "ThroughAll"

# Sketch on YZ plane
sketch10 = body.newObject("Sketcher::SketchObject", "Sketch009")
sketch10.AttachmentSupport = (doc.getObject("YZ_Plane"), [""])
sketch10.MapMode = "FlatFace"
sketch10.AttachmentOffset = App.Placement(Vector(0, 0, 34.5), App.Rotation())
sketch10.addGeometry(Part.Circle(Vector(12.5, -39.2, 0), Vector(0, 0, 1), 2), False)
sketch10.addConstraint(Sketcher.Constraint("Diameter", 0, Q("4 mm")))
sketch10.addConstraint(Sketcher.Constraint("DistanceX", -1, 1, 0, 3, Q("12.5 mm")))
sketch10.addConstraint(Sketcher.Constraint("DistanceY", 0, 3, -1, 1, Q("39.225 mm")))
pocket5 = body.newObject("PartDesign::Pocket", "Pocket004")
pocket5.Profile = sketch10
pocket5.Type = "ThroughAll"
doc.recompute()

chamfer = body.newObject("PartDesign::Chamfer", "Chamfer")
chamfer.Base = (pocket5, edges_at(pocket5, [(24.9, 0, -16.65)]))
chamfer.Size = 10

doc.recompute()
